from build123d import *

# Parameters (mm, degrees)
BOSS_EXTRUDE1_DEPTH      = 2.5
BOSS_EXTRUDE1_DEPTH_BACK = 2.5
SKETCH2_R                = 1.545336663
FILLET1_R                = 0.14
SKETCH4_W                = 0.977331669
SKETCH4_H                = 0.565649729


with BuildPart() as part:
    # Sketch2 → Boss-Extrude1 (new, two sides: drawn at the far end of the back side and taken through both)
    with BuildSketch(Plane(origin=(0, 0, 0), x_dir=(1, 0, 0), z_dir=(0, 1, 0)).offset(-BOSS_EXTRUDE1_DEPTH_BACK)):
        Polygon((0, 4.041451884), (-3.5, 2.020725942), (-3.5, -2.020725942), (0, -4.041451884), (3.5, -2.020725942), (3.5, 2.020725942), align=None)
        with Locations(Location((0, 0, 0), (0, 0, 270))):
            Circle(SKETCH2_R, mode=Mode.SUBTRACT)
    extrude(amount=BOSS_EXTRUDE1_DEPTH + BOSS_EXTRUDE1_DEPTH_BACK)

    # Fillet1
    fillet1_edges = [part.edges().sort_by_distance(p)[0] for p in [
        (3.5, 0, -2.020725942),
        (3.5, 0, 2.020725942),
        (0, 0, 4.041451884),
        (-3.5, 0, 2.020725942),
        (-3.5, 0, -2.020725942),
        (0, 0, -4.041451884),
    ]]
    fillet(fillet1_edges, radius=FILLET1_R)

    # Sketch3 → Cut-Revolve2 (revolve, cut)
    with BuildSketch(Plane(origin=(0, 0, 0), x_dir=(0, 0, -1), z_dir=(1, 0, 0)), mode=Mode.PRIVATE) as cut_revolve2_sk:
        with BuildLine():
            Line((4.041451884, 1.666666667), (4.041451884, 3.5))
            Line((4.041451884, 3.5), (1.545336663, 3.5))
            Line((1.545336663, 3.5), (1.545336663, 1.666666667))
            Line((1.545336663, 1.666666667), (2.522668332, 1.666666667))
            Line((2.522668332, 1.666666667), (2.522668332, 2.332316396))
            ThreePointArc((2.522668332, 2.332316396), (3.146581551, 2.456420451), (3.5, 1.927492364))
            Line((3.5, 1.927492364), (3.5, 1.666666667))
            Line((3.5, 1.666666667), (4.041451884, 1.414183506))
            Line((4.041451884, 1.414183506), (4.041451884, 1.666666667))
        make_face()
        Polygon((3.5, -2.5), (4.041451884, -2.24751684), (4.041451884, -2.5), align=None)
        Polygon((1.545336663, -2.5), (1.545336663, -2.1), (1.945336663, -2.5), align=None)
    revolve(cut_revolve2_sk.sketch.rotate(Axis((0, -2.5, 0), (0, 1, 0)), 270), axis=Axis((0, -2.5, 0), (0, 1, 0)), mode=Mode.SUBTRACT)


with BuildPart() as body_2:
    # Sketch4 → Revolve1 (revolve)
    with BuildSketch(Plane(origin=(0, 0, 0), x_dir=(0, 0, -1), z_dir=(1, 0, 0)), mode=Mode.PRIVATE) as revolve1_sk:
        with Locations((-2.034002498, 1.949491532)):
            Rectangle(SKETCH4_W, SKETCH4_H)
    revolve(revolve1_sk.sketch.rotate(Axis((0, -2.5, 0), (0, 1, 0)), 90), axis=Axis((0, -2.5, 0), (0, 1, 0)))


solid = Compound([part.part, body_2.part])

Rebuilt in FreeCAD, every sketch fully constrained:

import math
import FreeCAD as App
import Part
import Sketcher
Q = App.Units.Quantity


def edges_at(feature, points):
    """Names of the edges that pass closest to the given points."""
    edges = feature.Shape.Edges
    near = lambda p: min(range(len(edges)), key=lambda i: edges[i].distToShape(Part.Vertex(*p))[0])
    return sorted({f"Edge{near(p) + 1}" for p in points})

doc = App.newDocument("Part")
body = doc.addObject("PartDesign::Body", "Body")

# Sketch on XZ plane
sketch1 = doc.addObject("Sketcher::SketchObject", "Sketch")
body.addObject(sketch1)
sketch1.AttachmentSupport = (doc.XZ_Plane, [""])
sketch1.MapMode = "FlatFace"
sketch1.addGeometry([
    Part.LineSegment(App.Vector(0, -4, 0), App.Vector(-3.5, -2, 0)),  # 0
    Part.LineSegment(App.Vector(-3.5, -2, 0), App.Vector(-3.5, 2, 0)),  # 1
    Part.LineSegment(App.Vector(-3.5, 2, 0), App.Vector(0, 4, 0)),  # 2
    Part.LineSegment(App.Vector(0, 4, 0), App.Vector(3.5, 2, 0)),  # 3
    Part.LineSegment(App.Vector(3.5, 2, 0), App.Vector(3.5, -2, 0)),  # 4
    Part.LineSegment(App.Vector(3.5, -2, 0), App.Vector(0, -4, 0)),  # 5
    Part.Circle(App.Vector(0, 0, 0), App.Vector(0, 0, 1), 1.5),  # 6
], False)
sketch1.addConstraint([
    Sketcher.Constraint("Coincident", 0, 2, 1, 1),
    Sketcher.Constraint("Coincident", 1, 2, 2, 1),
    Sketcher.Constraint("Coincident", 2, 2, 3, 1),
    Sketcher.Constraint("Coincident", 3, 2, 4, 1),
    Sketcher.Constraint("Coincident", 4, 2, 5, 1),
    Sketcher.Constraint("Coincident", 5, 2, 0, 1),
    Sketcher.Constraint("Vertical", 1),
    Sketcher.Constraint("Vertical", 4),
    Sketcher.Constraint("Coincident", 6, 3, -1, 1),
    Sketcher.Constraint("Symmetric", 0, 2, 3, 2, -1, 1),
    Sketcher.Constraint("Symmetric", 2, 2, 5, 2, -1, 1),
    Sketcher.Constraint("PointOnObject", 2, 2, -2),
    Sketcher.Constraint("Parallel", 2, 5),
    Sketcher.Constraint("Horizontal", 1, 2, 3, 2),
    Sketcher.Constraint("Angle", 0, Q("150 deg")),
    Sketcher.Constraint("DistanceX", 1, 2, 3, 2, Q("7 mm")),
    Sketcher.Constraint("Diameter", 6, Q("3.090673 mm")),
    Sketcher.Constraint("DistanceY", 1, 1, 1, 2, Q("4.041452 mm")),
])
pad1 = doc.addObject("PartDesign::Pad", "Pad")
body.addObject(pad1)
pad1.Profile = sketch1
pad1.Type = "TwoLengths"
pad1.Length = 2.5
pad1.Length2 = 2.5
pad1.Reversed = True
doc.recompute()

fillet = doc.addObject("PartDesign::Fillet", "Fillet")
body.addObject(fillet)
fillet.Base = (pad1, edges_at(pad1, [
    (3.5, 0, -2.021),
    (3.5, 0, 2.021),
    (0, 0, 4.041),
    (-3.5, 0, 2.021),
    (-3.5, 0, -2.021),
    (0, 0, -4.041),
]))
fillet.Radius = 0.14

# Sketch on YZ plane
sketch2 = doc.addObject("Sketcher::SketchObject", "Sketch001")
body.addObject(sketch2)
sketch2.AttachmentSupport = (doc.YZ_Plane, [""])
sketch2.MapMode = "FlatFace"
sketch2.addGeometry([
    Part.LineSegment(App.Vector(3.5, -4.04, 0), App.Vector(3.5, -1.55, 0)),  # 0
    Part.LineSegment(App.Vector(3.5, -1.55, 0), App.Vector(1.67, -1.55, 0)),  # 1
    Part.LineSegment(App.Vector(1.67, -1.55, 0), App.Vector(1.67, -2.52, 0)),  # 2
    Part.LineSegment(App.Vector(1.67, -2.52, 0), App.Vector(2.33, -2.52, 0)),  # 3
    Part.ArcOfCircle(Part.Circle(App.Vector(1.93, -2.93, 0), App.Vector(0, 0, 1), 0.57), math.radians(-90), math.radians(45)),  # 4
    Part.LineSegment(App.Vector(1.93, -3.5, 0), App.Vector(1.67, -3.5, 0)),  # 5
    Part.LineSegment(App.Vector(1.67, -3.5, 0), App.Vector(1.41, -4.04, 0)),  # 6
    Part.LineSegment(App.Vector(1.41, -4.04, 0), App.Vector(3.5, -4.04, 0)),  # 7
    Part.LineSegment(App.Vector(-2.25, -4.04, 0), App.Vector(-2.5, -3.5, 0)),  # 8
    Part.LineSegment(App.Vector(-2.5, -3.5, 0), App.Vector(-2.5, -4.04, 0)),  # 9
    Part.LineSegment(App.Vector(-2.5, -4.04, 0), App.Vector(-2.25, -4.04, 0)),  # 10
    Part.LineSegment(App.Vector(-2.1, -1.55, 0), App.Vector(-2.5, -1.55, 0)),  # 11
    Part.LineSegment(App.Vector(-2.5, -1.55, 0), App.Vector(-2.5, -1.95, 0)),  # 12
    Part.LineSegment(App.Vector(-2.5, -1.95, 0), App.Vector(-2.1, -1.55, 0)),  # 13
], False)
sketch2.addConstraint([
    Sketcher.Constraint("Coincident", 0, 2, 1, 1),
    Sketcher.Constraint("Coincident", 1, 2, 2, 1),
    Sketcher.Constraint("Coincident", 2, 2, 3, 1),
    Sketcher.Constraint("Coincident", 3, 2, 4, 2),
    Sketcher.Constraint("Tangent", 4, 1, 5, 1),
    Sketcher.Constraint("Coincident", 5, 2, 6, 1),
    Sketcher.Constraint("Coincident", 6, 2, 7, 1),
    Sketcher.Constraint("Coincident", 7, 2, 0, 1),
    Sketcher.Constraint("Coincident", 8, 2, 9, 1),
    Sketcher.Constraint("Coincident", 9, 2, 10, 1),
    Sketcher.Constraint("Coincident", 10, 2, 8, 1),
    Sketcher.Constraint("Coincident", 11, 2, 12, 1),
    Sketcher.Constraint("Coincident", 12, 2, 13, 1),
    Sketcher.Constraint("Coincident", 13, 2, 11, 1),
    Sketcher.Constraint("Vertical", 0),
    Sketcher.Constraint("Horizontal", 1),
    Sketcher.Constraint("Vertical", 2),
    Sketcher.Constraint("Horizontal", 3),
    Sketcher.Constraint("Horizontal", 5),
    Sketcher.Constraint("Horizontal", 7),
    Sketcher.Constraint("Vertical", 9),
    Sketcher.Constraint("Horizontal", 10),
    Sketcher.Constraint("Horizontal", 11),
    Sketcher.Constraint("Vertical", 12),
    Sketcher.Constraint("Horizontal", 5, 2, 8, 2),
    Sketcher.Constraint("Horizontal", 7, 2, 9, 2),
    Sketcher.Constraint("Horizontal", 1, 2, 11, 2),
    Sketcher.Constraint("Vertical", 2, 2, 5, 2),
    Sketcher.Constraint("Vertical", 9, 2, 11, 2),
    Sketcher.Constraint("Equal", 11, 12),
    Sketcher.Constraint("Equal", 6, 8),
    Sketcher.Constraint("Angle", 6, Q("-115 deg")),
    Sketcher.Constraint("DistanceX", 11, 2, 11, 1, Q("0.4 mm")),
    Sketcher.Constraint("DistanceX", -1, 1, 0, 2, Q("3.5 mm")),
    Sketcher.Constraint("DistanceY", 4, 1, -1, 1, Q("3.5 mm")),
    Sketcher.Constraint("DistanceX", 8, 2, -1, 1, Q("2.5 mm")),
    Sketcher.Constraint("Radius", 4, Q("0.572508 mm")),
    Sketcher.Constraint("DistanceX", 3, 1, 3, 2, Q("0.66565 mm")),
    Sketcher.Constraint("DistanceY", 2, 2, 2, 1, Q("0.977332 mm")),
    Sketcher.Constraint("DistanceY", 9, 2, 9, 1, Q("0.541452 mm")),
    Sketcher.Constraint("DistanceX", 10, 2, 6, 2, Q("3.6617 mm")),
    Sketcher.Constraint("DistanceX", 5, 2, 5, 1, Q("0.260826 mm")),
])
groove = doc.addObject("PartDesign::Groove", "Groove")
body.addObject(groove)
groove.Profile = sketch2
groove.ReferenceAxis = (sketch2, ["H_Axis"])
groove.Angle = 360
body2 = doc.addObject("PartDesign::Body", "Body001")

# Sketch on YZ plane
sketch3 = doc.addObject("Sketcher::SketchObject", "Sketch002")
body2.addObject(sketch3)
sketch3.AttachmentSupport = (doc.getObject("YZ_Plane001"), [""])
sketch3.MapMode = "FlatFace"
sketch3.addGeometry([
    Part.LineSegment(App.Vector(2.2, 2.5, 0), App.Vector(1.7, 2.5, 0)),
    Part.LineSegment(App.Vector(1.7, 2.5, 0), App.Vector(1.7, 1.5, 0)),
    Part.LineSegment(App.Vector(1.7, 1.5, 0), App.Vector(2.2, 1.5, 0)),
    Part.LineSegment(App.Vector(2.2, 1.5, 0), App.Vector(2.2, 2.5, 0)),
], False)
sketch3.addConstraint([
    Sketcher.Constraint("Coincident", 0, 2, 1, 1),
    Sketcher.Constraint("Coincident", 1, 2, 2, 1),
    Sketcher.Constraint("Coincident", 2, 2, 3, 1),
    Sketcher.Constraint("Coincident", 3, 2, 0, 1),
    Sketcher.Constraint("Horizontal", 0),
    Sketcher.Constraint("Vertical", 1),
    Sketcher.Constraint("Horizontal", 2),
    Sketcher.Constraint("Vertical", 3),
    Sketcher.Constraint("DistanceX", 0, 2, 0, 1, Q("0.56565 mm")),
    Sketcher.Constraint("DistanceY", 1, 2, 1, 1, Q("0.977332 mm")),
    Sketcher.Constraint("DistanceY", -1, 1, 0, 2, Q("2.522668 mm")),
    Sketcher.Constraint("DistanceX", -1, 1, 0, 2, Q("1.666667 mm")),
])
revolution = doc.addObject("PartDesign::Revolution", "Revolution")
body2.addObject(revolution)
revolution.Profile = sketch3
revolution.ReferenceAxis = (sketch3, ["H_Axis"])
revolution.Angle = 360

doc.recompute()
